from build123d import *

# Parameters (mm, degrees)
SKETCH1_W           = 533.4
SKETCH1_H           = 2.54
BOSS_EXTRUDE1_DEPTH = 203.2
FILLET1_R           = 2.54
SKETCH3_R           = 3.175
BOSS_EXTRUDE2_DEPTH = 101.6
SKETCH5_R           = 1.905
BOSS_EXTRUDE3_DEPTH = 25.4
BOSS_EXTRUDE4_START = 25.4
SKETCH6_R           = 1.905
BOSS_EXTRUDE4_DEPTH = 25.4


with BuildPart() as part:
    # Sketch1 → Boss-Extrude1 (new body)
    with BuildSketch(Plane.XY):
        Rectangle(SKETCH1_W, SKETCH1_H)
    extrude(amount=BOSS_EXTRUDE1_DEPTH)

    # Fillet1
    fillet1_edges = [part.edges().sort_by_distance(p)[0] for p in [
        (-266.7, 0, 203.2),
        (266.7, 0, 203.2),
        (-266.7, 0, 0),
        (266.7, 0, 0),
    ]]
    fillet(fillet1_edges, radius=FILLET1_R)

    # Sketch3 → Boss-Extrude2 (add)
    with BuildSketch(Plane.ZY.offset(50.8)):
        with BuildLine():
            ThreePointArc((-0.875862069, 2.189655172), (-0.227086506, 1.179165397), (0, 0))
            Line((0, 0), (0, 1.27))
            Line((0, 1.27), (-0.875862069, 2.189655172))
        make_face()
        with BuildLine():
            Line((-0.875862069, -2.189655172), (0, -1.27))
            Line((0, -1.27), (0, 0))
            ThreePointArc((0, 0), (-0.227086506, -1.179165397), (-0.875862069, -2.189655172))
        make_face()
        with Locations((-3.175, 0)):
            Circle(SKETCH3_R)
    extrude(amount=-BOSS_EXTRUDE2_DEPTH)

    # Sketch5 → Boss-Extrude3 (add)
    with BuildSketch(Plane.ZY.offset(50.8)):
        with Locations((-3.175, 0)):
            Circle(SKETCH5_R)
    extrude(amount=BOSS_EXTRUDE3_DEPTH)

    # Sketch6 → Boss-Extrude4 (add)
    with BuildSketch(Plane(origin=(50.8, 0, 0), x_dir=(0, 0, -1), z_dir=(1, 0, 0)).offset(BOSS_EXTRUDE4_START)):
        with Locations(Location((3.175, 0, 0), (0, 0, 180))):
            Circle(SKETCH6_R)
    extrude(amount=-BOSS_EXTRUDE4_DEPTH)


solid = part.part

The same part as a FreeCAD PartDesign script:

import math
import FreeCAD as App
import Part
import Sketcher
Q = App.Units.Quantity


def edges_at(feature, points):
    """Names of the edges that pass closest to the given points."""
    edges = feature.Shape.Edges
    near = lambda p: min(range(len(edges)), key=lambda i: edges[i].distToShape(Part.Vertex(*p))[0])
    return sorted({f"Edge{near(p) + 1}" for p in points})


def add_polygon(sketch, points):
    """Adds a closed chain of lines whose ends are joined by coincident constraints."""
    first, n = sketch.GeometryCount, len(points)
    for a, b in zip(points, points[1:] + points[:1]):
        sketch.addGeometry(Part.LineSegment(App.Vector(*a, 0), App.Vector(*b, 0)), False)
    for i in range(n):
        sketch.addConstraint(Sketcher.Constraint("Coincident", first + i, 2, first + (i + 1) % n, 1))

doc = App.newDocument("Part")
body = doc.addObject("PartDesign::Body", "Body")

# Sketch on XY plane
sketch1 = body.newObject("Sketcher::SketchObject", "Sketch")
sketch1.AttachmentSupport = (doc.getObject("XY_Plane"), [""])
sketch1.MapMode = "FlatFace"
add_polygon(sketch1, [(-266.7, 1.3), (-266.7, -1.3), (266.7, -1.3), (266.7, 1.3)])  # lines 0-3
sketch1.addConstraint(Sketcher.Constraint("Vertical", 0))
sketch1.addConstraint(Sketcher.Constraint("Horizontal", 1))
sketch1.addConstraint(Sketcher.Constraint("Vertical", 2))
sketch1.addConstraint(Sketcher.Constraint("Horizontal", 3))
sketch1.addConstraint(Sketcher.Constraint("Symmetric", 0, 2, 2, 2, -1, 1))
sketch1.addConstraint(Sketcher.Constraint("DistanceX", 1, 1, 1, 2, Q("21 in")))
sketch1.addConstraint(Sketcher.Constraint("DistanceY", 0, 2, 0, 1, Q("0.1 in")))
pad1 = body.newObject("PartDesign::Pad", "Pad")
pad1.Profile = sketch1
pad1.Length = Q("8 in")
doc.recompute()

fillet = body.newObject("PartDesign::Fillet", "Fillet")
fillet.Base = (pad1, edges_at(pad1, [
    (-266.7, 0, 203.2),
    (266.7, 0, 203.2),
    (-266.7, 0, 0),
    (266.7, 0, 0),
]))
fillet.Radius = Q("0.1 in")

# Sketch on YZ plane
sketch2 = body.newObject("Sketcher::SketchObject", "Sketch001")
sketch2.AttachmentSupport = (doc.getObject("YZ_Plane"), [""])
sketch2.MapMode = "FlatFace"
sketch2.AttachmentOffset = App.Placement(App.Vector(0, 0, -2 * 25.4), App.Rotation())
sketch2.addGeometry(Part.LineSegment(App.Vector(1.3, 0, 0), App.Vector(2.2, -0.9, 0)), False)
sketch2.addGeometry(Part.ArcOfCircle(Part.Circle(App.Vector(0, -3.2, 0), App.Vector(0, 0, 1), 3.2), math.radians(134), math.radians(406)), False)
sketch2.addGeometry(Part.LineSegment(App.Vector(-2.2, -0.9, 0), App.Vector(-1.3, 0, 0)), False)
sketch2.addGeometry(Part.LineSegment(App.Vector(-1.3, 0, 0), App.Vector(1.3, 0, 0)), False)
sketch2.addConstraint(Sketcher.Constraint("Tangent", 0, 2, 1, 2))
sketch2.addConstraint(Sketcher.Constraint("Tangent", 1, 1, 2, 1))
sketch2.addConstraint(Sketcher.Constraint("Coincident", 2, 2, 3, 1))
sketch2.addConstraint(Sketcher.Constraint("Coincident", 3, 2, 0, 1))
sketch2.addConstraint(Sketcher.Constraint("Horizontal", 3))
sketch2.addConstraint(Sketcher.Constraint("Symmetric", 2, 2, 3, 2, -1, 1))
sketch2.addConstraint(Sketcher.Constraint("PointOnObject", 1, 3, -2))
sketch2.addConstraint(Sketcher.Constraint("DistanceX", 3, 1, 3, 2, Q("0.1 in")))
sketch2.addConstraint(Sketcher.Constraint("Radius", 1, Q("0.125 in")))
sketch2.addConstraint(Sketcher.Constraint("Distance", 0, Q("0.05 in")))
pad2 = body.newObject("PartDesign::Pad", "Pad001")
pad2.Profile = sketch2
pad2.Length = Q("4 in")

# Sketch on YZ plane
sketch3 = body.newObject("Sketcher::SketchObject", "Sketch002")
sketch3.AttachmentSupport = (doc.getObject("YZ_Plane"), [""])
sketch3.MapMode = "FlatFace"
sketch3.AttachmentOffset = App.Placement(App.Vector(0, 0, -2 * 25.4), App.Rotation())
sketch3.addGeometry(Part.Circle(App.Vector(0, -3.2, 0), App.Vector(0, 0, 1), 1.9), False)
sketch3.addConstraint(Sketcher.Constraint("PointOnObject", 0, 3, -2))
sketch3.addConstraint(Sketcher.Constraint("Diameter", 0, Q("0.15 in")))
sketch3.addConstraint(Sketcher.Constraint("DistanceY", 0, 3, -1, 1, Q("0.125 in")))
pad3 = body.newObject("PartDesign::Pad", "Pad002")
pad3.Profile = sketch3
pad3.Length = Q("1 in")
pad3.Reversed = True

# Sketch on YZ plane
sketch4 = body.newObject("Sketcher::SketchObject", "Sketch003")
sketch4.AttachmentSupport = (doc.getObject("YZ_Plane"), [""])
sketch4.MapMode = "FlatFace"
sketch4.AttachmentOffset = App.Placement(App.Vector(0, 0, 3 * 25.4), App.Rotation())
sketch4.addGeometry(Part.Circle(App.Vector(0, -3.2, 0), App.Vector(0, 0, 1), 1.9), False)
sketch4.addConstraint(Sketcher.Constraint("PointOnObject", 0, 3, -2))
sketch4.addConstraint(Sketcher.Constraint("Diameter", 0, Q("0.15 in")))
sketch4.addConstraint(Sketcher.Constraint("DistanceY", 0, 3, -1, 1, Q("0.125 in")))
pad4 = body.newObject("PartDesign::Pad", "Pad003")
pad4.Profile = sketch4
pad4.Length = Q("1 in")
pad4.Reversed = True

doc.recompute()
